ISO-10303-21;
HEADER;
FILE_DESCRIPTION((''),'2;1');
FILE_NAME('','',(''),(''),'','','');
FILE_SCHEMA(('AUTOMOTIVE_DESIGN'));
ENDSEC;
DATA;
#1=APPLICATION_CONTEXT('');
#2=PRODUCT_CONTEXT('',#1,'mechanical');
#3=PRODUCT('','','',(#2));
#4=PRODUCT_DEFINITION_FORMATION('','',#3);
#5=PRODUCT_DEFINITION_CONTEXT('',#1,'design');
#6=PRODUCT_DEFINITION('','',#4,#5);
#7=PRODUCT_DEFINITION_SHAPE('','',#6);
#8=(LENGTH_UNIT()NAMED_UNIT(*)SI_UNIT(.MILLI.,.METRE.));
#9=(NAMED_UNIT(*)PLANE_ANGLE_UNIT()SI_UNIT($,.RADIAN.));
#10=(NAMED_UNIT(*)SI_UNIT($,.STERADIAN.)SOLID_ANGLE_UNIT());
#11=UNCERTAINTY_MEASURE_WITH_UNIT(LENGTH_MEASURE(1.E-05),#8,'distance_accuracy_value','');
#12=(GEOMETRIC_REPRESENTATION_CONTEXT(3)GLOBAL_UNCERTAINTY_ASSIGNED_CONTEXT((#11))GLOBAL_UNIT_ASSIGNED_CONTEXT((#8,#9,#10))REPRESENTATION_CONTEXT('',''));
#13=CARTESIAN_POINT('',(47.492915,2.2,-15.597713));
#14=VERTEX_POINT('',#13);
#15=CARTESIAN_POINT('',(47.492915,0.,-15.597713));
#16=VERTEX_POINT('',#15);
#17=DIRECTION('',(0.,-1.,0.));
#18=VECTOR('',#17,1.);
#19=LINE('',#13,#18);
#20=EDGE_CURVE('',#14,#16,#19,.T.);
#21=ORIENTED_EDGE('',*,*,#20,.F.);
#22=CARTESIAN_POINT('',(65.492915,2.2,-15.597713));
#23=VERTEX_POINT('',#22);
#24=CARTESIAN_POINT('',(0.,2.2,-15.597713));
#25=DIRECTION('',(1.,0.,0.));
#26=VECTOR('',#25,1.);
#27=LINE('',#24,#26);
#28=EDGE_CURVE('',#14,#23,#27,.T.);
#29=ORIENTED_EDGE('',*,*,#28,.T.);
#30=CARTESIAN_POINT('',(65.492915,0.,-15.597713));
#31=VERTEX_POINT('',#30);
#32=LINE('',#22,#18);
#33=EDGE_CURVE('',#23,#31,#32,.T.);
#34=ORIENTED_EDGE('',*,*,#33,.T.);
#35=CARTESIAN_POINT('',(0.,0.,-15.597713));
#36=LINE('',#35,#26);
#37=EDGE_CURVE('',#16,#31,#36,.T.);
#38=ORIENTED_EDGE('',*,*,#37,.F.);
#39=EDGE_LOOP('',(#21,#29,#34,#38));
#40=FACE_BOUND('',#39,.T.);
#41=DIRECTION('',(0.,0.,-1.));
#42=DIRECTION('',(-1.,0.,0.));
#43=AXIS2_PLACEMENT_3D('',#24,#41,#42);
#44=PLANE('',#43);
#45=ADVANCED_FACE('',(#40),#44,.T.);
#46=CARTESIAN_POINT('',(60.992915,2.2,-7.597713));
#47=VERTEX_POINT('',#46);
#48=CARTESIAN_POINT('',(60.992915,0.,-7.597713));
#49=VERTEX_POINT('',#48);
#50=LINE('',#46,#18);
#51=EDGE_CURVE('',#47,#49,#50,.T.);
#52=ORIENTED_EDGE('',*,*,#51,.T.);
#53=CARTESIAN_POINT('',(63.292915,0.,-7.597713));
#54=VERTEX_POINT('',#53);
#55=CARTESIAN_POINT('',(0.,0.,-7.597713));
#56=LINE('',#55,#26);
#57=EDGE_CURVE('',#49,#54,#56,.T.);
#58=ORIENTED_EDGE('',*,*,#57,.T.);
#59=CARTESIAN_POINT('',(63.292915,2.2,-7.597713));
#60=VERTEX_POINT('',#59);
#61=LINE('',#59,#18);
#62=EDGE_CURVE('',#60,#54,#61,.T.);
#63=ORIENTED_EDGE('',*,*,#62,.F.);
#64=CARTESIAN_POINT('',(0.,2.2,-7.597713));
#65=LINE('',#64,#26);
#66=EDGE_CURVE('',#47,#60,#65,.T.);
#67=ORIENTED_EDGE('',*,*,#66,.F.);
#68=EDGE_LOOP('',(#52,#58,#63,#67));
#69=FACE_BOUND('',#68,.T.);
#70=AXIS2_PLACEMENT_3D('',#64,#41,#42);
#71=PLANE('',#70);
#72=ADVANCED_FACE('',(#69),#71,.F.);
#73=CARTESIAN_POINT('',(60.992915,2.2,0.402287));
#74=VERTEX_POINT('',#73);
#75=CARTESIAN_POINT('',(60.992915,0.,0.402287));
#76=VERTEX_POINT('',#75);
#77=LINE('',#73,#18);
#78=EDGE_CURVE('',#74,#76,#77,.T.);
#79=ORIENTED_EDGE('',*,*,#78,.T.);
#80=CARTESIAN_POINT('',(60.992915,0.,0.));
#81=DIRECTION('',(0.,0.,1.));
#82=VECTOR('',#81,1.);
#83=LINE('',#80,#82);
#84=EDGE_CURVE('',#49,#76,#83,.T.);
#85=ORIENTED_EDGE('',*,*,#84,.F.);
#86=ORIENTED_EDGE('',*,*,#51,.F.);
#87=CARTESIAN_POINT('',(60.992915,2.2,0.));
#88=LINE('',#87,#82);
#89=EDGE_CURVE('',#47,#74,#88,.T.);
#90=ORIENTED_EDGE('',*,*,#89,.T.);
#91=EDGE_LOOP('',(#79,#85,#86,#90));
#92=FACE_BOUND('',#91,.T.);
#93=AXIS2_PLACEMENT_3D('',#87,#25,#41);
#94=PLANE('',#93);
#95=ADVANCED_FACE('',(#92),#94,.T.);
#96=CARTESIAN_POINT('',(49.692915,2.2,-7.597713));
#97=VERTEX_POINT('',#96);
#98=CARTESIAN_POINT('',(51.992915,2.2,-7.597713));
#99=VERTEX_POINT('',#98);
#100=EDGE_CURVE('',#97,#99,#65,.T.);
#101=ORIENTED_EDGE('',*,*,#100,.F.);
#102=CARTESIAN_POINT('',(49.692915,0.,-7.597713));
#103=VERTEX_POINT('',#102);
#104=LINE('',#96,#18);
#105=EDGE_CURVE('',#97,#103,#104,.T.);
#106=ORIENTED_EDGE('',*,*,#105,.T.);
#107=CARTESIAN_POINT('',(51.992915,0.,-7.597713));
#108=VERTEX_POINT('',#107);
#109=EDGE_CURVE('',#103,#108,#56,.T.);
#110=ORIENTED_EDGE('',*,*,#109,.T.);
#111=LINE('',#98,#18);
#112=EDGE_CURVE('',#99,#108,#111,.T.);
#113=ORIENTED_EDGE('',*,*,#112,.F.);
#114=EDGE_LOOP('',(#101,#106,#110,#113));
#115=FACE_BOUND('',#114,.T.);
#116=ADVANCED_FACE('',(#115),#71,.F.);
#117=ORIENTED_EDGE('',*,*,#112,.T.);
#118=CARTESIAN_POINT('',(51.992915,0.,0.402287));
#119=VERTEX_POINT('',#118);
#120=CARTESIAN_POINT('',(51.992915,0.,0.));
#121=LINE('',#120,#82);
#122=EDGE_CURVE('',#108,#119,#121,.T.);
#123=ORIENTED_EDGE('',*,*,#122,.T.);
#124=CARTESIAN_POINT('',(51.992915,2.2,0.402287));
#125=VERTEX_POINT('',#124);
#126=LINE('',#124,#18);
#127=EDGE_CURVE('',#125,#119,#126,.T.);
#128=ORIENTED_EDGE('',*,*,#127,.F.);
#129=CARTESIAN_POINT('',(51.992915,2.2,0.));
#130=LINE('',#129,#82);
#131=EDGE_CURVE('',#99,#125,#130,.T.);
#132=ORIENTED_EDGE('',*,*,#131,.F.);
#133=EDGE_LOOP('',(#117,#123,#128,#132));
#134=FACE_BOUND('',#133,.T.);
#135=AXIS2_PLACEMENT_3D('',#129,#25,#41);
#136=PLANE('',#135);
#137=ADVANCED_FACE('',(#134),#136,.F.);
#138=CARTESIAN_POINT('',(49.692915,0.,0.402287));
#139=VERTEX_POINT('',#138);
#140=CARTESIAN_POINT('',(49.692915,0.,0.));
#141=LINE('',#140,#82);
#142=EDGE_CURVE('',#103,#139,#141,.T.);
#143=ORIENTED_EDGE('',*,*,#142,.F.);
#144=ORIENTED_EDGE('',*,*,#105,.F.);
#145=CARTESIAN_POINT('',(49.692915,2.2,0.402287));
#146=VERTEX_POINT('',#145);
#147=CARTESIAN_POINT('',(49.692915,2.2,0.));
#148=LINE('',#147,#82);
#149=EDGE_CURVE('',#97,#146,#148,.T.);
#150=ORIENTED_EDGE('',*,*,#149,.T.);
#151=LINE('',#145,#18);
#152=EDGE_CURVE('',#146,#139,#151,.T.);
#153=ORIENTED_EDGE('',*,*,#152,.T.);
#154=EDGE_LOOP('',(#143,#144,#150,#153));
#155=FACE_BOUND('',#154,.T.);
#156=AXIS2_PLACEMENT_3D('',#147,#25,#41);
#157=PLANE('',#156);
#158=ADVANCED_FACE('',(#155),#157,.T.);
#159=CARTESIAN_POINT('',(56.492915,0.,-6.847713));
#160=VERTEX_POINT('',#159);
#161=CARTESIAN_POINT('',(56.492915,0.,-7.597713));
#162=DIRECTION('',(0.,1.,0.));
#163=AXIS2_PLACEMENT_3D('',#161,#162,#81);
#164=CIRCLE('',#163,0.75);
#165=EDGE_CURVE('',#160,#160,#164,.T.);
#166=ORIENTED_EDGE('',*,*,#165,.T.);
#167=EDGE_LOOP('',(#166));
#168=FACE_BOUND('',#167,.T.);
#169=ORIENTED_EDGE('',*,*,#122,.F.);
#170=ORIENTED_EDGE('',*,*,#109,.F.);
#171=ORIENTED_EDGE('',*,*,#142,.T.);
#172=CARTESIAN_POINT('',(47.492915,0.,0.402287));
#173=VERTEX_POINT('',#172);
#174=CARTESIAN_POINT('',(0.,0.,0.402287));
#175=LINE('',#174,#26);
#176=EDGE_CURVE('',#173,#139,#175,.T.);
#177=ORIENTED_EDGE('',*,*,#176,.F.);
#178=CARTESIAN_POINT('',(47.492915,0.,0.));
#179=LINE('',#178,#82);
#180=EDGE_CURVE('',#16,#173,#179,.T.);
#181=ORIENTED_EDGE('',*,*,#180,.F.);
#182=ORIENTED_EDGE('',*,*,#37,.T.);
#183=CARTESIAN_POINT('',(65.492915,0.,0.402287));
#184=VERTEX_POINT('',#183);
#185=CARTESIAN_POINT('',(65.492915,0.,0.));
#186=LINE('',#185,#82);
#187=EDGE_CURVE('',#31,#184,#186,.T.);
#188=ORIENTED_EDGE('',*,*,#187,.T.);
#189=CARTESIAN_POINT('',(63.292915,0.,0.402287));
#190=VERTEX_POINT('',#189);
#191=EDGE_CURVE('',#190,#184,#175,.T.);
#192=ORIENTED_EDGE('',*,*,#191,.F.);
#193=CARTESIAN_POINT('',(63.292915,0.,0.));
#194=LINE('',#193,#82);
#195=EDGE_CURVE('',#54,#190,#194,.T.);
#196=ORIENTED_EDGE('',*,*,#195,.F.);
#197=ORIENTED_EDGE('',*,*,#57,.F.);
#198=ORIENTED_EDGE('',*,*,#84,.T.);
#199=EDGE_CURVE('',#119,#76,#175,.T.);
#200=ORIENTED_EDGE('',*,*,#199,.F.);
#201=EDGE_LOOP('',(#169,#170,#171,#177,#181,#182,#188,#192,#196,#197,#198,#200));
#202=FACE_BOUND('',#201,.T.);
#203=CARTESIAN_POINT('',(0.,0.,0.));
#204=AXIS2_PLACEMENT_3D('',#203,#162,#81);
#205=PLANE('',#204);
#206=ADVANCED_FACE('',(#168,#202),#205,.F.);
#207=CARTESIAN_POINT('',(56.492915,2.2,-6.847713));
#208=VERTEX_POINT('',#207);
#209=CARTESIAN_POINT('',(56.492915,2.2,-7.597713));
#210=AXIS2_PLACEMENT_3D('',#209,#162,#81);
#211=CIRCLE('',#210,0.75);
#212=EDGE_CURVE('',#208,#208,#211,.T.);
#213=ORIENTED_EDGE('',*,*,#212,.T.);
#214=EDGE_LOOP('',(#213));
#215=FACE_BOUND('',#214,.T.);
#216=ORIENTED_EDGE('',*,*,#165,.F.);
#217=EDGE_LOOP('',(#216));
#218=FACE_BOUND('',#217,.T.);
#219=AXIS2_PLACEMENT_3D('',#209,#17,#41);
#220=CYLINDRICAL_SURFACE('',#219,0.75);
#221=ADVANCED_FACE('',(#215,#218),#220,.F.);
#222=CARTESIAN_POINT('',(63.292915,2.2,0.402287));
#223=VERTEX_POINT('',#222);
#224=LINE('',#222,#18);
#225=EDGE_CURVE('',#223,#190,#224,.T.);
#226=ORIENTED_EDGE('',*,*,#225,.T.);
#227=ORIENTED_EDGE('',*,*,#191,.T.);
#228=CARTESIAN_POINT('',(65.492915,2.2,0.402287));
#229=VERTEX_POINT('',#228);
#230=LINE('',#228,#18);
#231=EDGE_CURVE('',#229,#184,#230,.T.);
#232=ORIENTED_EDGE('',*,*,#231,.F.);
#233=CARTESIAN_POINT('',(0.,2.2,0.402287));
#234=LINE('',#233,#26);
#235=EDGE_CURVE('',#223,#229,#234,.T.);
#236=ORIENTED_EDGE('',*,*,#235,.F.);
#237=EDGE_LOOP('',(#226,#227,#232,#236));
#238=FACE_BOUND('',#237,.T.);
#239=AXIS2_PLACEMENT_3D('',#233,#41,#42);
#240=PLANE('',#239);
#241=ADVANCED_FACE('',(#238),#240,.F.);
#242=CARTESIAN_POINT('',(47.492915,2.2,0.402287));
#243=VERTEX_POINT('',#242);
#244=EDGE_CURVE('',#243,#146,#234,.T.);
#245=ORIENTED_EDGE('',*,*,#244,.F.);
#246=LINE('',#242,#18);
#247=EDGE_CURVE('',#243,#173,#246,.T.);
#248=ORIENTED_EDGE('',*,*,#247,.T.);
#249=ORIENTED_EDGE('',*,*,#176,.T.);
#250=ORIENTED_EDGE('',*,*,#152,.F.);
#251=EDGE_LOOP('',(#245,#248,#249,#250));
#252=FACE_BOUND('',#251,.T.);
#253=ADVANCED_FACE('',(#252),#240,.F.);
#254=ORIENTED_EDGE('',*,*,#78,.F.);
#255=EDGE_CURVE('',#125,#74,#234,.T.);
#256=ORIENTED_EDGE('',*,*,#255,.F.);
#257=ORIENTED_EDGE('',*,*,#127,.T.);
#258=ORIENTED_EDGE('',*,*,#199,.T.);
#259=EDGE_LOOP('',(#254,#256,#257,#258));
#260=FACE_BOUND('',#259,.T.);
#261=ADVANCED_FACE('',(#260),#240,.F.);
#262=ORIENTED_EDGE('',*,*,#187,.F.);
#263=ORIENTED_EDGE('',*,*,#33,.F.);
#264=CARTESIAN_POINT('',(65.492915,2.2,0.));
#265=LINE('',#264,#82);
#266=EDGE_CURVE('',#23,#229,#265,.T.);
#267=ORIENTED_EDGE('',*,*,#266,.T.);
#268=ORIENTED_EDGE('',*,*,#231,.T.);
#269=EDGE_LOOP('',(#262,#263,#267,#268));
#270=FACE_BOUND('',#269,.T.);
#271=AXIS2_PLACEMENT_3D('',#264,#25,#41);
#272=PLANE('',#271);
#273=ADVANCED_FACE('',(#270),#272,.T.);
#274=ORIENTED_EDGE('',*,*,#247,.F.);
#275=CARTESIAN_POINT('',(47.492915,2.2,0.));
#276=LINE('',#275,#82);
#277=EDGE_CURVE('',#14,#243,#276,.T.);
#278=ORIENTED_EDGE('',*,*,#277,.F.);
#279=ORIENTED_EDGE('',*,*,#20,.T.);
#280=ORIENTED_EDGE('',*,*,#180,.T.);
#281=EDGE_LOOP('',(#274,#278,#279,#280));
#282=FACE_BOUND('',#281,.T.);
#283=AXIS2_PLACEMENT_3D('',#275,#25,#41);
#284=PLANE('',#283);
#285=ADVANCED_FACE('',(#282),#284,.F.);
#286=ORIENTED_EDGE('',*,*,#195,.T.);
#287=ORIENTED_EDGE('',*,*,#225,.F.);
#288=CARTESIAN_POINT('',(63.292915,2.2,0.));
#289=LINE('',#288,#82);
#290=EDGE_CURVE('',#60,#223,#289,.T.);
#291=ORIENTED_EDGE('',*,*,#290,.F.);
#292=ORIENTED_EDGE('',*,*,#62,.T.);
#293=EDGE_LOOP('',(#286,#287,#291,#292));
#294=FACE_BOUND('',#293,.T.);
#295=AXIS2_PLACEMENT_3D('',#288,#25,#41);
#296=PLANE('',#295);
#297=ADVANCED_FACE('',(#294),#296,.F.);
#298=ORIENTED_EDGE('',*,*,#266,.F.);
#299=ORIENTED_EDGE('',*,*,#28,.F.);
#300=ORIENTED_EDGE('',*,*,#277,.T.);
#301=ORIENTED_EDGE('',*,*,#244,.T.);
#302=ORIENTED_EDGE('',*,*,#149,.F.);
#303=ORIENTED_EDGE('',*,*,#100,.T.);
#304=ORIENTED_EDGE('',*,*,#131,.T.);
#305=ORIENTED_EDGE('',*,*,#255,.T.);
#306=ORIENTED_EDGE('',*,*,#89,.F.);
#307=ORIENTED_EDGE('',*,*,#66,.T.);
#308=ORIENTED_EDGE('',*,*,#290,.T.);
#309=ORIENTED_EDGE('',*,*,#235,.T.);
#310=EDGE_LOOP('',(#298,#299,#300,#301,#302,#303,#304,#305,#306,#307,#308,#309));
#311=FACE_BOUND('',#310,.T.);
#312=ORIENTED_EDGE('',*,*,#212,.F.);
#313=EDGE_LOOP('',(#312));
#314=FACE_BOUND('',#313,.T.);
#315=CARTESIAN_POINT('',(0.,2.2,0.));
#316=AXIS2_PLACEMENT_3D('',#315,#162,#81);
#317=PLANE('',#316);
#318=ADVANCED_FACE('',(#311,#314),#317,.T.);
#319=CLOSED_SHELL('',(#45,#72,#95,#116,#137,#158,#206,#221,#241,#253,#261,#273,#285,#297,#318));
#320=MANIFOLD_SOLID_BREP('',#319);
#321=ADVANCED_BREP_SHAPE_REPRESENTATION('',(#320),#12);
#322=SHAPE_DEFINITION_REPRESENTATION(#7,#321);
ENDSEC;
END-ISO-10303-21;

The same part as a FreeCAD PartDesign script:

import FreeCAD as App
import Part
import Sketcher
from FreeCAD import Vector


def add_polygon(sketch, points):
    """Adds a closed chain of lines whose ends are joined by coincident constraints."""
    first, n = sketch.GeometryCount, len(points)
    for a, b in zip(points, points[1:] + points[:1]):
        sketch.addGeometry(Part.LineSegment(App.Vector(*a, 0), App.Vector(*b, 0)), False)
    for i in range(n):
        sketch.addConstraint(Sketcher.Constraint("Coincident", first + i, 2, first + (i + 1) % n, 1))

doc = App.newDocument("Part")
body = doc.addObject("PartDesign::Body", "Body")

sketch1 = body.newObject("Sketcher::SketchObject", "Sketch")
sketch1.AttachmentSupport = (doc.getObject("XZ_Plane"), [""])
sketch1.MapMode = "FlatFace"
add_polygon(sketch1, [(65.5, 0.4), (65.5, -15.6), (47.5, -15.6), (47.5, 0.4), (49.7, 0.4), (49.7, -7.6), (52, -7.6), (52, 0.4), (61, 0.4), (61, -7.6), (63.3, -7.6), (63.3, 0.4)])
sketch1.addGeometry(Part.Circle(Vector(56.5, -7.6, 0), Vector(0, 0, 1), 0.8), False)
sketch1.addConstraint(Sketcher.Constraint("Vertical", 0))
sketch1.addConstraint(Sketcher.Constraint("Horizontal", 1))
sketch1.addConstraint(Sketcher.Constraint("Vertical", 2))
sketch1.addConstraint(Sketcher.Constraint("Horizontal", 3))
sketch1.addConstraint(Sketcher.Constraint("Vertical", 4))
sketch1.addConstraint(Sketcher.Constraint("Horizontal", 5))
sketch1.addConstraint(Sketcher.Constraint("Vertical", 6))
sketch1.addConstraint(Sketcher.Constraint("Horizontal", 7))
sketch1.addConstraint(Sketcher.Constraint("Vertical", 8))
sketch1.addConstraint(Sketcher.Constraint("Horizontal", 9))
sketch1.addConstraint(Sketcher.Constraint("Vertical", 10))
sketch1.addConstraint(Sketcher.Constraint("Horizontal", 11))
sketch1.addConstraint(Sketcher.Constraint("Horizontal", 12, 3, 4, 2))
sketch1.addConstraint(Sketcher.Constraint("Horizontal", 3, 2, 6, 2))
sketch1.addConstraint(Sketcher.Constraint("Horizontal", 5, 2, 8, 2))
sketch1.addConstraint(Sketcher.Constraint("Horizontal", 7, 2, 10, 2))
sketch1.addConstraint(Sketcher.Constraint("Equal", 5, 9))
sketch1.addConstraint(Sketcher.Constraint("Equal", 3, 11))
sketch1.addConstraint(Sketcher.Constraint("Diameter", 12, 1.5))
sketch1.addConstraint(Sketcher.Constraint("DistanceX", 1, 2, 1, 1, 18.0))
sketch1.addConstraint(Sketcher.Constraint("DistanceX", 7, 1, 7, 2, 9.0))
sketch1.addConstraint(Sketcher.Constraint("DistanceY", 0, 2, 0, 1, 16.0))
sketch1.addConstraint(Sketcher.Constraint("DistanceY", 4, 2, 4, 1, 8.0))
sketch1.addConstraint(Sketcher.Constraint("DistanceX", 3, 1, 3, 2, 2.2))
sketch1.addConstraint(Sketcher.Constraint("DistanceX", 12, 3, 0, 2, 9.0))
sketch1.addConstraint(Sketcher.Constraint("DistanceX", -1, 1, 12, 3, 56.492915))
sketch1.addConstraint(Sketcher.Constraint("DistanceY", 12, 3, -1, 1, 7.597713))
pad1 = body.newObject("PartDesign::Pad", "Pad")
pad1.Profile = sketch1
pad1.Length = 2.2
pad1.Reversed = True

doc.recompute()
